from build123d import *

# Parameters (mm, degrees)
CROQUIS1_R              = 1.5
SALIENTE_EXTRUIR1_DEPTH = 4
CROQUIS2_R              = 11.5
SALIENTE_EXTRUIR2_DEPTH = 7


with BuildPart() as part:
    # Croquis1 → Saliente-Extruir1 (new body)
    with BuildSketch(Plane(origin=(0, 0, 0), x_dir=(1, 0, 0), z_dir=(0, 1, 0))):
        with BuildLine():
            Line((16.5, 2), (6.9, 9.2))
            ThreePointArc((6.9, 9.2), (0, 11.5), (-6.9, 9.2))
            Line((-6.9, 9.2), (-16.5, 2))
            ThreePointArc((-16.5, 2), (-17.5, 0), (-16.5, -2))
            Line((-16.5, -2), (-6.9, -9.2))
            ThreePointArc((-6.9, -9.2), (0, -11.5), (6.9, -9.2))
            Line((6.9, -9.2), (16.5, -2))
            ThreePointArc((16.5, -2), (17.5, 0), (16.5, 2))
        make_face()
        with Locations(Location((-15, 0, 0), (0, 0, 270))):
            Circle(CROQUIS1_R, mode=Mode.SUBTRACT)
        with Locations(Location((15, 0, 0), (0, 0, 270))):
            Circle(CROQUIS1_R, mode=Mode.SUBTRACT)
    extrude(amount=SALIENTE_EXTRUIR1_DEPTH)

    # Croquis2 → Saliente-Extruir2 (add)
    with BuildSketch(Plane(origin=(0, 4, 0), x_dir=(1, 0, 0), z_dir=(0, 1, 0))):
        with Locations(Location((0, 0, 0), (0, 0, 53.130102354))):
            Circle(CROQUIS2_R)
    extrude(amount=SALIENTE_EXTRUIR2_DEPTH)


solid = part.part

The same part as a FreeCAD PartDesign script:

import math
import FreeCAD as App
import Part
import Sketcher

doc = App.newDocument("Part")
params = doc.addObject("Spreadsheet::Sheet", "Params")
for row, (alias, value) in enumerate([
    ("sketch1_diameter", "3 mm"),
    ("sketch1_radius", "11.5 mm"),
    ("sketch1_radius2", "2.5 mm"),
    ("sketch1_length", "12 mm"),
    ("pad1_length", "4 mm"),
    ("sketch2_diameter", "23 mm"),
    ("pad2_length", "7 mm"),
], start=1):
    params.set(f"A{row}", alias)
    params.set(f"B{row}", "=" + value)
    params.setAlias(f"B{row}", alias)

body = doc.addObject("PartDesign::Body", "Body")

# Sketch on XZ plane
sketch1 = body.newObject("Sketcher::SketchObject", "Sketch")
sketch1.AttachmentSupport = (doc.getObject("XZ_Plane"), [""])
sketch1.MapMode = "FlatFace"
sketch1.addGeometry([
    Part.LineSegment(App.Vector(16.5, -2, 0), App.Vector(6.9, -9.2, 0)),  # 0
    Part.ArcOfCircle(Part.Circle(App.Vector(0, 0, 0), App.Vector(0, 0, 1), 11.5), math.radians(-126.869898), math.radians(-53.130102)),  # 1
    Part.LineSegment(App.Vector(-6.9, -9.2, 0), App.Vector(-16.5, -2, 0)),  # 2
    Part.ArcOfCircle(Part.Circle(App.Vector(-15, 0, 0), App.Vector(0, 0, 1), 2.5), math.radians(126.869898), math.radians(233.130102)),  # 3
    Part.LineSegment(App.Vector(-16.5, 2, 0), App.Vector(-6.9, 9.2, 0)),  # 4
    Part.ArcOfCircle(Part.Circle(App.Vector(0, 0, 0), App.Vector(0, 0, 1), 11.5), math.radians(53.130102), math.radians(126.869898)),  # 5
    Part.LineSegment(App.Vector(6.9, 9.2, 0), App.Vector(16.5, 2, 0)),  # 6
    Part.ArcOfCircle(Part.Circle(App.Vector(15, 0, 0), App.Vector(0, 0, 1), 2.5), math.radians(-53.130102), math.radians(53.130102)),  # 7
    Part.Circle(App.Vector(-15, 0, 0), App.Vector(0, 0, 1), 1.5),  # 8
    Part.Circle(App.Vector(15, 0, 0), App.Vector(0, 0, 1), 1.5),  # 9
], False)
sketch1.addConstraint([
    Sketcher.Constraint("Tangent", 0, 2, 1, 2),
    Sketcher.Constraint("Tangent", 1, 1, 2, 1),
    Sketcher.Constraint("Tangent", 2, 2, 3, 2),
    Sketcher.Constraint("Tangent", 3, 1, 4, 1),
    Sketcher.Constraint("Tangent", 4, 2, 5, 2),
    Sketcher.Constraint("Tangent", 5, 1, 6, 1),
    Sketcher.Constraint("Tangent", 6, 2, 7, 2),
    Sketcher.Constraint("Tangent", 7, 1, 0, 1),
    Sketcher.Constraint("Coincident", 1, 3, -1, 1),
    Sketcher.Constraint("Coincident", 5, 3, -1, 1),
    Sketcher.Constraint("Coincident", 8, 3, 3, 3),
    Sketcher.Constraint("Coincident", 9, 3, 7, 3),
    Sketcher.Constraint("Equal", 1, 5),
    Sketcher.Constraint("Equal", 3, 7),
    Sketcher.Constraint("Equal", 8, 9),
    Sketcher.Constraint("Symmetric", 3, 3, 7, 3, -1, 1),
    Sketcher.Constraint("PointOnObject", 3, 3, -1),
    Sketcher.Constraint("Diameter", 8, 3.0),
    Sketcher.Constraint("Radius", 1, 11.5),
    Sketcher.Constraint("Radius", 3, 2.5),
    Sketcher.Constraint("Distance", 0, 12.0),
])
sketch1.setExpression("Constraints[17]", "Params.sketch1_diameter")
sketch1.setExpression("Constraints[18]", "Params.sketch1_radius")
sketch1.setExpression("Constraints[19]", "Params.sketch1_radius2")
sketch1.setExpression("Constraints[20]", "Params.sketch1_length")
pad1 = body.newObject("PartDesign::Pad", "Pad")
pad1.Profile = sketch1
pad1.setExpression("Length", "Params.pad1_length")
pad1.Reversed = True

# Sketch on XZ plane
sketch2 = body.newObject("Sketcher::SketchObject", "Sketch001")
sketch2.AttachmentSupport = (doc.getObject("XZ_Plane"), [""])
sketch2.MapMode = "FlatFace"
sketch2.AttachmentOffset = App.Placement(App.Vector(0, 0, -4), App.Rotation())
sketch2.addGeometry(Part.Circle(App.Vector(0, 0, 0), App.Vector(0, 0, 1), 11.5), False)
sketch2.addConstraint([
    Sketcher.Constraint("Coincident", 0, 3, -1, 1),
    Sketcher.Constraint("Diameter", 0, 23.0),
])
sketch2.setExpression("Constraints[1]", "Params.sketch2_diameter")
pad2 = body.newObject("PartDesign::Pad", "Pad001")
pad2.Profile = sketch2
pad2.setExpression("Length", "Params.pad2_length")
pad2.Reversed = True

doc.recompute()
